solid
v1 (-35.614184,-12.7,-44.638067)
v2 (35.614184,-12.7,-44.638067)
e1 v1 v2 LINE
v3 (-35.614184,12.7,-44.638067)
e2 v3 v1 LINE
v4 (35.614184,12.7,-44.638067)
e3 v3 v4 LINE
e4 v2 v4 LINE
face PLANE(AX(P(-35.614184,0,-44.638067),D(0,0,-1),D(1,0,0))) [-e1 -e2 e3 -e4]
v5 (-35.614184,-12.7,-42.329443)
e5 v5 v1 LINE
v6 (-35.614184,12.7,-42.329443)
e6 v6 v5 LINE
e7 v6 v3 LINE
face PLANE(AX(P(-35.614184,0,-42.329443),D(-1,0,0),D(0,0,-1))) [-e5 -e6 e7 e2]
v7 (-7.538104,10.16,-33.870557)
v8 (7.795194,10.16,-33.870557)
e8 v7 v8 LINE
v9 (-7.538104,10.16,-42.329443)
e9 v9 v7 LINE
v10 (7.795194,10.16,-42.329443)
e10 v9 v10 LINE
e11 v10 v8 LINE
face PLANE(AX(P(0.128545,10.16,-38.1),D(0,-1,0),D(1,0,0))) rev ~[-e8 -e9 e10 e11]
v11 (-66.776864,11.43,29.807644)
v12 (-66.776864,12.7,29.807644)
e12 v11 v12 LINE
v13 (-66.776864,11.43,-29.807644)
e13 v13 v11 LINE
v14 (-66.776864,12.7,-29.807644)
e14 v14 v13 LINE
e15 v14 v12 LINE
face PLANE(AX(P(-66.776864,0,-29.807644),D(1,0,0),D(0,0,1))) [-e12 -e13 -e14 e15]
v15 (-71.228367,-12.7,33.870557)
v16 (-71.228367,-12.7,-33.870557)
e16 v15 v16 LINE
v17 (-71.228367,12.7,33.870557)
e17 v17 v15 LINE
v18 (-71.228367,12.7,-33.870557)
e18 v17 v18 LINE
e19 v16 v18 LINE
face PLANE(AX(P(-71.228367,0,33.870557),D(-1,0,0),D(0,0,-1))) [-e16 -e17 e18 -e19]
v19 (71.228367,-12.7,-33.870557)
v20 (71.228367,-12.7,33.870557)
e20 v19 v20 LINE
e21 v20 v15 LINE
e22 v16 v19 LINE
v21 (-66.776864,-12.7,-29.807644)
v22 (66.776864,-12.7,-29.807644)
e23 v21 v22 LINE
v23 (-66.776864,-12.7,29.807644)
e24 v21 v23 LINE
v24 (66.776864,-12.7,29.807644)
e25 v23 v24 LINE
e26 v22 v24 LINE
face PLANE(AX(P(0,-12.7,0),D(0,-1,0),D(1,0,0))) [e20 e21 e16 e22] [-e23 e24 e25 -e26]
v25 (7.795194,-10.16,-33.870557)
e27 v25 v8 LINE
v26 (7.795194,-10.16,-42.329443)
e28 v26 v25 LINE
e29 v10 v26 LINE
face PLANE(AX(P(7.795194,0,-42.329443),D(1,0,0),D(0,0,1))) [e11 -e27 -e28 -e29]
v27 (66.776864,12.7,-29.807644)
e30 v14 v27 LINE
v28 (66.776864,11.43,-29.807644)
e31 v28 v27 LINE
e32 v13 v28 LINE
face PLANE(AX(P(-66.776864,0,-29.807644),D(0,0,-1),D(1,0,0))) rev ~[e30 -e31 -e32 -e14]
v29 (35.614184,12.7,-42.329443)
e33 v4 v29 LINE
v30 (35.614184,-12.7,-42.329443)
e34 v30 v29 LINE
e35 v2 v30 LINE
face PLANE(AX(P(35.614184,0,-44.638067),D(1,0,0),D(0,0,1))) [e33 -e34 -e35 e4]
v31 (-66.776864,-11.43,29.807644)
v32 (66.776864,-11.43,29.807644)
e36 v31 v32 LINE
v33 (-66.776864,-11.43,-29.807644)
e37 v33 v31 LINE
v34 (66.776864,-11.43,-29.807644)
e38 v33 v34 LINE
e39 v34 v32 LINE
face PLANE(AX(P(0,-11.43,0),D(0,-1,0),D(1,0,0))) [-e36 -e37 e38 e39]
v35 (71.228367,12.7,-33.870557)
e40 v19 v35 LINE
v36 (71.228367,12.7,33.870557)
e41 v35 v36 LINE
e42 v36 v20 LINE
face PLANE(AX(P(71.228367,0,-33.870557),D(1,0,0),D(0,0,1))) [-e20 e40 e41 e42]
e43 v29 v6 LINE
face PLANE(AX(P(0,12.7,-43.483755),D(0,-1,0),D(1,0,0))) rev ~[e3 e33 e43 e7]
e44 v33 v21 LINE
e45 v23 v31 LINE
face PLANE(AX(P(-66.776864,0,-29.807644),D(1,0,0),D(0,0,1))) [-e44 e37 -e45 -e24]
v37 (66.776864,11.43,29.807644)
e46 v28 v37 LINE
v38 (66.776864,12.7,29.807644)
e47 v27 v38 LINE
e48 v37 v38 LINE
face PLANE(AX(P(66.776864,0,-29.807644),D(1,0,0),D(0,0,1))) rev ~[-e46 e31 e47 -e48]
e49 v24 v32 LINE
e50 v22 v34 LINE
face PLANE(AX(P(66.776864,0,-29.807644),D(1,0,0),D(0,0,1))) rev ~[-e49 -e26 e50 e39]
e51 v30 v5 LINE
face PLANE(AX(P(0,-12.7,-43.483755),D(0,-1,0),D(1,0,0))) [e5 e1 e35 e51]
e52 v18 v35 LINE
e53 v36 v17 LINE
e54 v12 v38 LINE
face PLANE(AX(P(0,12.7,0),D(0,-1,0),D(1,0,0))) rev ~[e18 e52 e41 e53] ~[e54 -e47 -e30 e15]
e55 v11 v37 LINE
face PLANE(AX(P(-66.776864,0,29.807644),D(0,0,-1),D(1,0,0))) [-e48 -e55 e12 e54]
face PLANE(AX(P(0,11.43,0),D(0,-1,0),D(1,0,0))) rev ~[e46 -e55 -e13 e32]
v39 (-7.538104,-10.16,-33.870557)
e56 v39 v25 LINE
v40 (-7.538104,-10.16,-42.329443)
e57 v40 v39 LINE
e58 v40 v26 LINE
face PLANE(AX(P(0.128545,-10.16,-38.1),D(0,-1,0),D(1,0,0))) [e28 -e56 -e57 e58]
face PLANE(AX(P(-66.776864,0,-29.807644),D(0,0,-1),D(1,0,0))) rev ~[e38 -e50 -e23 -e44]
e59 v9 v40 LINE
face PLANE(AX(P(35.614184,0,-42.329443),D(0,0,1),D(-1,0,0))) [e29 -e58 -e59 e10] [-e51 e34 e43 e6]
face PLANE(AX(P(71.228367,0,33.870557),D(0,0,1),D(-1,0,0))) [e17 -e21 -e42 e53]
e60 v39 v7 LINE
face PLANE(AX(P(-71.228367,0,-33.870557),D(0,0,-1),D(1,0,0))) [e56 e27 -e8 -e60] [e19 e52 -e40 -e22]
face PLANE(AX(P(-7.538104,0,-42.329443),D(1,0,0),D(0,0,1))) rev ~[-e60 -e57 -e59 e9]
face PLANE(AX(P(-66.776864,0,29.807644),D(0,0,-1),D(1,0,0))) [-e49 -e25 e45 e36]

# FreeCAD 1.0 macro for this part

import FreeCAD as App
import Part
import Sketcher

V = App.Vector
Q = App.Units.Quantity

doc = App.newDocument("Part")
body = doc.addObject("PartDesign::Body", "Body")

# Sketch on XZ plane
sketch1 = body.newObject("Sketcher::SketchObject", "Sketch")
sketch1.AttachmentSupport = (doc.getObject("XZ_Plane"), [""])
sketch1.MapMode = "FlatFace"
sketch1.addGeometry([
    Part.LineSegment(V(71, -34, 0), V(71, 34, 0)),  # 0
    Part.LineSegment(V(71, 34, 0), V(-71, 34, 0)),  # 1
    Part.LineSegment(V(-71, 34, 0), V(-71, -34, 0)),  # 2
    Part.LineSegment(V(-71, -34, 0), V(71, -34, 0)),  # 3
    Part.LineSegment(V(67, -30, 0), V(-67, -30, 0)),  # 4
    Part.LineSegment(V(-67, -30, 0), V(-67, 30, 0)),  # 5
    Part.LineSegment(V(-67, 30, 0), V(67, 30, 0)),  # 6
    Part.LineSegment(V(67, 30, 0), V(67, -30, 0)),  # 7
], False)
sketch1.addConstraint([
    Sketcher.Constraint("Coincident", 0, 2, 1, 1),
    Sketcher.Constraint("Coincident", 1, 2, 2, 1),
    Sketcher.Constraint("Coincident", 2, 2, 3, 1),
    Sketcher.Constraint("Coincident", 3, 2, 0, 1),
    Sketcher.Constraint("Coincident", 4, 2, 5, 1),
    Sketcher.Constraint("Coincident", 5, 2, 6, 1),
    Sketcher.Constraint("Coincident", 6, 2, 7, 1),
    Sketcher.Constraint("Coincident", 7, 2, 4, 1),
    Sketcher.Constraint("Vertical", 0),
    Sketcher.Constraint("Horizontal", 1),
    Sketcher.Constraint("Vertical", 2),
    Sketcher.Constraint("Horizontal", 3),
    Sketcher.Constraint("Horizontal", 4),
    Sketcher.Constraint("Vertical", 5),
    Sketcher.Constraint("Horizontal", 6),
    Sketcher.Constraint("Vertical", 7),
    Sketcher.Constraint("Symmetric", 0, 2, 2, 2, -1, 1),
    Sketcher.Constraint("Symmetric", 4, 2, 6, 2, -1, 1),
    Sketcher.Constraint("DistanceX", 4, 2, 4, 1, Q("133.553728 mm")),
    Sketcher.Constraint("DistanceY", 4, 2, 1, 2, Q("63.678201 mm")),
    Sketcher.Constraint("DistanceX", 1, 2, 1, 1, Q("142.456734 mm")),
    Sketcher.Constraint("DistanceY", 0, 1, 0, 2, Q("67.741114 mm")),
])
pad1 = body.newObject("PartDesign::Pad", "Pad")
pad1.Profile = sketch1
pad1.Length = Q("1 in")
pad1.Midplane = True

# Sketch on XZ plane
sketch2 = body.newObject("Sketcher::SketchObject", "Sketch001")
sketch2.AttachmentSupport = (doc.getObject("XZ_Plane"), [""])
sketch2.MapMode = "FlatFace"
sketch2.addGeometry([
    Part.LineSegment(V(-67, 30, 0), V(-67, -30, 0)),
    Part.LineSegment(V(-67, -30, 0), V(67, -30, 0)),
    Part.LineSegment(V(67, -30, 0), V(67, 30, 0)),
    Part.LineSegment(V(67, 30, 0), V(-67, 30, 0)),
], False)
sketch2.addConstraint([
    Sketcher.Constraint("Coincident", 0, 2, 1, 1),
    Sketcher.Constraint("Coincident", 1, 2, 2, 1),
    Sketcher.Constraint("Coincident", 2, 2, 3, 1),
    Sketcher.Constraint("Coincident", 3, 2, 0, 1),
    Sketcher.Constraint("Vertical", 0),
    Sketcher.Constraint("Horizontal", 1),
    Sketcher.Constraint("Vertical", 2),
    Sketcher.Constraint("Horizontal", 3),
    Sketcher.Constraint("Symmetric", 0, 2, 2, 2, -1, 1),
    Sketcher.Constraint("DistanceX", 1, 1, 1, 2, Q("133.553728 mm")),
    Sketcher.Constraint("DistanceY", 0, 2, 0, 1, Q("59.615288 mm")),
])
pad2 = body.newObject("PartDesign::Pad", "Pad001")
pad2.Profile = sketch2
pad2.Length = Q("0.9 in")
pad2.Midplane = True

# Sketch on XZ plane
sketch3 = body.newObject("Sketcher::SketchObject", "Sketch002")
sketch3.AttachmentSupport = (doc.getObject("XZ_Plane"), [""])
sketch3.MapMode = "FlatFace"
sketch3.addGeometry([
    Part.LineSegment(V(-8, -34, 0), V(-8, -42, 0)),
    Part.LineSegment(V(-8, -42, 0), V(8, -42, 0)),
    Part.LineSegment(V(8, -42, 0), V(8, -34, 0)),
    Part.LineSegment(V(8, -34, 0), V(-8, -34, 0)),
], False)
sketch3.addConstraint([
    Sketcher.Constraint("Coincident", 0, 2, 1, 1),
    Sketcher.Constraint("Coincident", 1, 2, 2, 1),
    Sketcher.Constraint("Coincident", 2, 2, 3, 1),
    Sketcher.Constraint("Coincident", 3, 2, 0, 1),
    Sketcher.Constraint("Vertical", 0),
    Sketcher.Constraint("Horizontal", 1),
    Sketcher.Constraint("Vertical", 2),
    Sketcher.Constraint("Horizontal", 3),
    Sketcher.Constraint("DistanceX", 1, 1, 1, 2, Q("15.333298 mm")),
    Sketcher.Constraint("DistanceY", 0, 2, 0, 1, Q("8.458886 mm")),
    Sketcher.Constraint("DistanceX", 0, 2, -1, 1, Q("7.538104 mm")),
    Sketcher.Constraint("DistanceY", 0, 2, -1, 1, Q("42.329443 mm")),
])
pad3 = body.newObject("PartDesign::Pad", "Pad002")
pad3.Profile = sketch3
pad3.Length = Q("0.8 in")
pad3.Midplane = True

# Sketch on XZ plane
sketch4 = body.newObject("Sketcher::SketchObject", "Sketch003")
sketch4.AttachmentSupport = (doc.getObject("XZ_Plane"), [""])
sketch4.MapMode = "FlatFace"
sketch4.addGeometry([
    Part.LineSegment(V(35.6, -42.3, 0), V(-35.6, -42.3, 0)),
    Part.LineSegment(V(-35.6, -42.3, 0), V(-35.6, -44.6, 0)),
    Part.LineSegment(V(-35.6, -44.6, 0), V(35.6, -44.6, 0)),
    Part.LineSegment(V(35.6, -44.6, 0), V(35.6, -42.3, 0)),
], False)
sketch4.addConstraint([
    Sketcher.Constraint("Coincident", 0, 2, 1, 1),
    Sketcher.Constraint("Coincident", 1, 2, 2, 1),
    Sketcher.Constraint("Coincident", 2, 2, 3, 1),
    Sketcher.Constraint("Coincident", 3, 2, 0, 1),
    Sketcher.Constraint("Horizontal", 0),
    Sketcher.Constraint("Vertical", 1),
    Sketcher.Constraint("Horizontal", 2),
    Sketcher.Constraint("Vertical", 3),
    Sketcher.Constraint("DistanceX", 0, 2, 0, 1, Q("71.228368 mm")),
    Sketcher.Constraint("DistanceY", 1, 2, 1, 1, Q("2.308624 mm")),
    Sketcher.Constraint("DistanceX", 0, 2, -1, 1, Q("35.614184 mm")),
    Sketcher.Constraint("DistanceY", 0, 2, -1, 1, Q("42.329443 mm")),
])
pad4 = body.newObject("PartDesign::Pad", "Pad003")
pad4.Profile = sketch4
pad4.Length = Q("1 in")
pad4.Midplane = True

doc.recompute()
